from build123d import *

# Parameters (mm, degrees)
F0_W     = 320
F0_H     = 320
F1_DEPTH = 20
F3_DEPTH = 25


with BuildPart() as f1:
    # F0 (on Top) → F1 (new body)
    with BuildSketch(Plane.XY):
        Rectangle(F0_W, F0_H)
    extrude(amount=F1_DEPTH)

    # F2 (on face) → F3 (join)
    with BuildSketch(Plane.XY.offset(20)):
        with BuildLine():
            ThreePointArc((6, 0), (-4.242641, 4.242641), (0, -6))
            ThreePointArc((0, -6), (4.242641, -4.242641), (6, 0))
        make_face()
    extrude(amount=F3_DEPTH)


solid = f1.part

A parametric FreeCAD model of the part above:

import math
import FreeCAD as App
import Part
import Sketcher
from FreeCAD import Vector
Q = App.Units.Quantity

doc = App.newDocument("Part")
params = doc.addObject("Spreadsheet::Sheet", "Params")
for row, (alias, value) in enumerate([
    ("sketch1_width", "320 mm"),
    ("pad1_length", "20 mm"),
    ("sketch2_radius", "6 mm"),
    ("pad2_length", "25 mm"),
], start=1):
    params.set(f"A{row}", alias)
    params.set(f"B{row}", "=" + value)
    params.setAlias(f"B{row}", alias)

body = doc.addObject("PartDesign::Body", "Body")

# Sketch on XY plane
sketch1 = doc.addObject("Sketcher::SketchObject", "Sketch")
body.addObject(sketch1)
sketch1.AttachmentSupport = (doc.XY_Plane, [""])
sketch1.MapMode = "FlatFace"
sketch1.addGeometry(Part.LineSegment(Vector(-160, 160, 0), Vector(-160, -160, 0)), False)
sketch1.addGeometry(Part.LineSegment(Vector(-160, -160, 0), Vector(160, -160, 0)), False)
sketch1.addGeometry(Part.LineSegment(Vector(160, -160, 0), Vector(160, 160, 0)), False)
sketch1.addGeometry(Part.LineSegment(Vector(160, 160, 0), Vector(-160, 160, 0)), False)
sketch1.addConstraint(Sketcher.Constraint("Coincident", 0, 2, 1, 1))
sketch1.addConstraint(Sketcher.Constraint("Coincident", 1, 2, 2, 1))
sketch1.addConstraint(Sketcher.Constraint("Coincident", 2, 2, 3, 1))
sketch1.addConstraint(Sketcher.Constraint("Coincident", 3, 2, 0, 1))
sketch1.addConstraint(Sketcher.Constraint("Vertical", 0))
sketch1.addConstraint(Sketcher.Constraint("Horizontal", 1))
sketch1.addConstraint(Sketcher.Constraint("Vertical", 2))
sketch1.addConstraint(Sketcher.Constraint("Horizontal", 3))
sketch1.addConstraint(Sketcher.Constraint("Symmetric", 0, 2, 2, 2, -1, 1))
sketch1.addConstraint(Sketcher.Constraint("Equal", 3, 0))
sketch1.addConstraint(Sketcher.Constraint("DistanceX", 1, 1, 1, 2, Q("320 mm")))
sketch1.setExpression("Constraints[10]", "Params.sketch1_width")
pad1 = doc.addObject("PartDesign::Pad", "Pad")
body.addObject(pad1)
pad1.Profile = sketch1
pad1.setExpression("Length", "Params.pad1_length")

# Sketch on XY plane
sketch2 = doc.addObject("Sketcher::SketchObject", "Sketch001")
body.addObject(sketch2)
sketch2.AttachmentSupport = (doc.XY_Plane, [""])
sketch2.MapMode = "FlatFace"
sketch2.AttachmentOffset = App.Placement(Vector(0, 0, 20), App.Rotation())
sketch2.addGeometry(Part.ArcOfCircle(Part.Circle(Vector(0, 0, 0), Vector(0, 0, 1), 6), math.radians(-0.000002), math.radians(270.000002)), False)
sketch2.addGeometry(Part.ArcOfCircle(Part.Circle(Vector(0.000001, -0.000001, 0), Vector(0, 0, 1), 5.999999), math.radians(-90.00001), math.radians(0.00001)), False)
sketch2.addConstraint(Sketcher.Constraint("Tangent", 0, 1, 1, 2))
sketch2.addConstraint(Sketcher.Constraint("Coincident", 1, 1, 0, 2))
sketch2.addConstraint(Sketcher.Constraint("Coincident", 0, 3, -1, 1))
sketch2.addConstraint(Sketcher.Constraint("PointOnObject", 0, 1, -1))
sketch2.addConstraint(Sketcher.Constraint("PointOnObject", 1, 1, -2))
sketch2.addConstraint(Sketcher.Constraint("Radius", 0, Q("6 mm")))
sketch2.setExpression("Constraints[5]", "Params.sketch2_radius")
pad2 = doc.addObject("PartDesign::Pad", "Pad001")
body.addObject(pad2)
pad2.Profile = sketch2
pad2.setExpression("Length", "Params.pad2_length")

doc.recompute()
